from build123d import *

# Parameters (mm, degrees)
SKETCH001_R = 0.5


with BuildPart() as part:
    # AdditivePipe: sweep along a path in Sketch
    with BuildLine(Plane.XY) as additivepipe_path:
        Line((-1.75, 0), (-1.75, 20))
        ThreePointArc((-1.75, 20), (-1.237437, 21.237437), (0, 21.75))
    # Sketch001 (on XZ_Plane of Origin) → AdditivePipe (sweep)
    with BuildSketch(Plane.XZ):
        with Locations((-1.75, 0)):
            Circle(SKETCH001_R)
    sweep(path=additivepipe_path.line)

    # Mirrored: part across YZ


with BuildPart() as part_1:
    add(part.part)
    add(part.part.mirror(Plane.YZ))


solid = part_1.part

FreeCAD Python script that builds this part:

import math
import FreeCAD as App
import Part
import Sketcher
from FreeCAD import Vector

doc = App.newDocument("Part")
body = doc.addObject("PartDesign::Body", "Body")

# Sketch on XZ plane
sketch1 = body.newObject("Sketcher::SketchObject", "Sketch")
sketch1.AttachmentSupport = (doc.getObject("XZ_Plane"), [""])
sketch1.MapMode = "FlatFace"
sketch1.addGeometry(Part.Circle(Vector(-1.75, 0, 0), Vector(0, 0, 1), 0.5), False)
sketch1.addConstraint(Sketcher.Constraint("PointOnObject", 0, 3, -1))
sketch1.addConstraint(Sketcher.Constraint("Diameter", 0, 1.0))
sketch1.addConstraint(Sketcher.Constraint("DistanceX", 0, 3, -1, 1, 1.75))

# Sketch on XY plane
sketch2 = body.newObject("Sketcher::SketchObject", "Sketch001")
sketch2.AttachmentSupport = (doc.getObject("XY_Plane"), [""])
sketch2.MapMode = "FlatFace"
sketch2.addGeometry(Part.LineSegment(Vector(-1.75, 0, 0), Vector(-1.75, 20, 0)), False)
sketch2.addGeometry(Part.ArcOfCircle(Part.Circle(Vector(0, 20, 0), Vector(0, 0, 1), 1.75), math.radians(89.999985), math.radians(180.000015)), False)
sketch2.addConstraint(Sketcher.Constraint("Tangent", 0, 2, 1, 2))
sketch2.addConstraint(Sketcher.Constraint("Vertical", 0))
sketch2.addConstraint(Sketcher.Constraint("PointOnObject", 1, 3, -2))
sketch2.addConstraint(Sketcher.Constraint("PointOnObject", 0, 1, -1))
sketch2.addConstraint(Sketcher.Constraint("PointOnObject", 1, 1, -2))
sketch2.addConstraint(Sketcher.Constraint("DistanceY", 0, 1, 0, 2, 20.0))
sketch2.addConstraint(Sketcher.Constraint("Radius", 1, 1.75))
doc.recompute()

additivepipe = body.newObject("PartDesign::AdditivePipe", "AdditivePipe")
additivepipe.Profile = sketch1
additivepipe.Spine = (sketch2, ["Edge1", "Edge2"])
body2 = doc.addObject("PartDesign::Body", "Body001")
doc.recompute()

body2.BaseFeature = body
doc.recompute()

mirroring = doc.addObject("Part::Mirroring", "Mirroring")
mirroring.Source = body
mirroring.Base = Vector(0, 0, 0)
mirroring.Normal = Vector(1, 0, 0)
body3 = doc.addObject("PartDesign::Body", "Body002")
body3.BaseFeature = mirroring
boolean = body2.newObject("PartDesign::Boolean", "Boolean")
boolean.Type = "Fuse"
boolean.addObjects([body3])
doc.recompute()
mirroring.Visibility = False

doc.recompute()
